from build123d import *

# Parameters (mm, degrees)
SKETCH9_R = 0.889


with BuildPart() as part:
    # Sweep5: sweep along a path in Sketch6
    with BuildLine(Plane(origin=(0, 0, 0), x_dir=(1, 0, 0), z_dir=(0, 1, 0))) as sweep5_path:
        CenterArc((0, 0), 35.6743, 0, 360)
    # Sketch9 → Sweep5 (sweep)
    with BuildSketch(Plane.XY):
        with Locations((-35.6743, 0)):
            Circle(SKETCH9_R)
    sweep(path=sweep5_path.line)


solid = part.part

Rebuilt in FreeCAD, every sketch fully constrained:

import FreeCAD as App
import Part
import Sketcher
from FreeCAD import Vector
Q = App.Units.Quantity

doc = App.newDocument("Part")
body = doc.addObject("PartDesign::Body", "Body")

# Sketch on XY plane
sketch1 = doc.addObject("Sketcher::SketchObject", "Sketch")
body.addObject(sketch1)
sketch1.AttachmentSupport = (doc.XY_Plane, [""])
sketch1.MapMode = "FlatFace"
sketch1.addGeometry(Part.Circle(Vector(-35.7, 0, 0), Vector(0, 0, 1), 0.9), False)
sketch1.addConstraint(Sketcher.Constraint("PointOnObject", 0, 3, -1))
sketch1.addConstraint(Sketcher.Constraint("Diameter", 0, Q("0.07 in")))
sketch1.addConstraint(Sketcher.Constraint("DistanceX", 0, 3, -1, 1, Q("1.4045 in")))

# Sketch on XZ plane
sketch2 = doc.addObject("Sketcher::SketchObject", "Sketch001")
body.addObject(sketch2)
sketch2.AttachmentSupport = (doc.XZ_Plane, [""])
sketch2.MapMode = "FlatFace"
sketch2.addGeometry(Part.Circle(Vector(0, 0, 0), Vector(0, 0, 1), 36), False)
sketch2.addConstraint(Sketcher.Constraint("Coincident", 0, 3, -1, 1))
sketch2.addConstraint(Sketcher.Constraint("Diameter", 0, Q("2.809 in")))
doc.recompute()

additivepipe = doc.addObject("PartDesign::AdditivePipe", "AdditivePipe")
body.addObject(additivepipe)
additivepipe.Profile = sketch1
additivepipe.Spine = (sketch2, ["Edge1"])

doc.recompute()
